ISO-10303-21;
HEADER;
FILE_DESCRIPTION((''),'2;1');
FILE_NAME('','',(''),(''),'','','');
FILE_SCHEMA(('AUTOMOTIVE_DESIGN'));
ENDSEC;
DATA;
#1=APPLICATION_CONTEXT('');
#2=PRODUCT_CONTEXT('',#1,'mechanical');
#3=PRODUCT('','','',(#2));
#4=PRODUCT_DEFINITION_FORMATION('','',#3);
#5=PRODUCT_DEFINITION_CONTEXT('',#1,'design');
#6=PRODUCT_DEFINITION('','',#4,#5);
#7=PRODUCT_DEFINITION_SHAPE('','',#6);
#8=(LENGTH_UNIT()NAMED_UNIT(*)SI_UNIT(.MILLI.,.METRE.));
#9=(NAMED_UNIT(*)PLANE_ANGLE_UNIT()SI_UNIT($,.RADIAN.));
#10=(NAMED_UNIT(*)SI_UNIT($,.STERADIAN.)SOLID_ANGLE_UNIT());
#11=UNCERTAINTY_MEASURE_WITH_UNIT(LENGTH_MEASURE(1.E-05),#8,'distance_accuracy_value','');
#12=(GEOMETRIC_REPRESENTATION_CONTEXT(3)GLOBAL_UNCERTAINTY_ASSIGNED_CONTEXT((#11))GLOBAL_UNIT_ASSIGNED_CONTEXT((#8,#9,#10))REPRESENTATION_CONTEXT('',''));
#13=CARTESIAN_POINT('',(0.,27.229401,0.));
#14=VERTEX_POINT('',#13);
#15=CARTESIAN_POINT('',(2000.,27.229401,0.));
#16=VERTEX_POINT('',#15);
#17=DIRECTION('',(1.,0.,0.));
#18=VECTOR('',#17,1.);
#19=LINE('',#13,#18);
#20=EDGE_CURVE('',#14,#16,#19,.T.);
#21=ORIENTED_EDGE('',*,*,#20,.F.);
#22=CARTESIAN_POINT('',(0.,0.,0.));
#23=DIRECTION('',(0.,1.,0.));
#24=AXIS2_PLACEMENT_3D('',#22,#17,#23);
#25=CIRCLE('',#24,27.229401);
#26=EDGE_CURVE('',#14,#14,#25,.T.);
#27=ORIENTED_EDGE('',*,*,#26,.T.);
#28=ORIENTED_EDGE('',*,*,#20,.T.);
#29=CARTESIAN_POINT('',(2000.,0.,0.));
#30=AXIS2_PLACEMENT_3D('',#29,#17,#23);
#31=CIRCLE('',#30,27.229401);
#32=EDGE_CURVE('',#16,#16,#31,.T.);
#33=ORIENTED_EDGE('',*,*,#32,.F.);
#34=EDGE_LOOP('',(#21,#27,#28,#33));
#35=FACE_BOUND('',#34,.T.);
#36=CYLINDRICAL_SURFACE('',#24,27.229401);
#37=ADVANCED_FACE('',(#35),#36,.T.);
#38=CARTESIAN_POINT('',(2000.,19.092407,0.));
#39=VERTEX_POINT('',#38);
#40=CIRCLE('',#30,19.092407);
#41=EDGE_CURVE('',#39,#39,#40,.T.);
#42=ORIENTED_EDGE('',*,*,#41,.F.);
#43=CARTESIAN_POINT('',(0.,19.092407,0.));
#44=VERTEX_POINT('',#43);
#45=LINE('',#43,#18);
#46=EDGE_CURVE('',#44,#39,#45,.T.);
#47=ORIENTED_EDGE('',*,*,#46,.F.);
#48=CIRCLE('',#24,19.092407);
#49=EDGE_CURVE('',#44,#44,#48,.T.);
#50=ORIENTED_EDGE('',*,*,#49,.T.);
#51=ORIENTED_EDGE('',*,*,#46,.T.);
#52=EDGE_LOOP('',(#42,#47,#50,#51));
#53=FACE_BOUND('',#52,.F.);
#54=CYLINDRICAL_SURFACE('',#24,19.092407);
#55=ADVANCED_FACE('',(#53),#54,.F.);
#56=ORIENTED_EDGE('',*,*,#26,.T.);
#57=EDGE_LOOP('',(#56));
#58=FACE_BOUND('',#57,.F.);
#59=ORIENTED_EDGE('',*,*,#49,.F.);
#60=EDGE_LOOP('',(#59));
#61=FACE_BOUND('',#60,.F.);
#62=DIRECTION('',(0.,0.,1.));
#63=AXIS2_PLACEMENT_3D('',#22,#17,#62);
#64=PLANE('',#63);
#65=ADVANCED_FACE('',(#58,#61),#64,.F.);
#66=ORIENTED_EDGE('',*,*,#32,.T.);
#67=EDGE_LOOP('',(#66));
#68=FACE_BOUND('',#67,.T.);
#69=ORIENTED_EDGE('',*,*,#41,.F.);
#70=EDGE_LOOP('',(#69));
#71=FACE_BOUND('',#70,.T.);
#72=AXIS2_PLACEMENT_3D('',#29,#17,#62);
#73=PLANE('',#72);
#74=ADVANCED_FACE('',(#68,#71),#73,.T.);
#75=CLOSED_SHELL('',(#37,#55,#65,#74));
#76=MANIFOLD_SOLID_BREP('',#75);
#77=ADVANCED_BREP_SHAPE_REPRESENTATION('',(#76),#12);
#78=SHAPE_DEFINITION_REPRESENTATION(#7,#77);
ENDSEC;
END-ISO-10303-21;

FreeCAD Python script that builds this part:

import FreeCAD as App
import Part
import Sketcher
from FreeCAD import Vector

doc = App.newDocument("Part")
body = doc.addObject("PartDesign::Body", "Body")

# Sketch on YZ plane
sketch1 = body.newObject("Sketcher::SketchObject", "Sketch")
sketch1.AttachmentSupport = (doc.getObject("YZ_Plane"), [""])
sketch1.MapMode = "FlatFace"
sketch1.addGeometry([
    Part.Circle(Vector(0, 0, 0), Vector(0, 0, 1), 27.229401),
    Part.Circle(Vector(0, 0, 0), Vector(0, 0, 1), 19.092407),
], False)
sketch1.addConstraint([
    Sketcher.Constraint("Coincident", 0, 3, -1, 1),
    Sketcher.Constraint("Coincident", 1, 3, -1, 1),
    Sketcher.Constraint("Diameter", 0, 54.458802),
    Sketcher.Constraint("Diameter", 1, 38.184814),
])

# Sketch on XY plane
sketch2 = body.newObject("Sketcher::SketchObject", "Sketch001")
sketch2.AttachmentSupport = (doc.getObject("XY_Plane"), [""])
sketch2.MapMode = "FlatFace"
sketch2.addGeometry(Part.LineSegment(Vector(0, 0, 0), Vector(2000, 0, 0)), False)
sketch2.addConstraint([
    Sketcher.Constraint("Horizontal", 0),
    Sketcher.Constraint("Coincident", 0, 1, -1, 1),
    Sketcher.Constraint("DistanceX", 0, 1, 0, 2, 2000.0),
])
doc.recompute()

additivepipe = body.newObject("PartDesign::AdditivePipe", "AdditivePipe")
additivepipe.Profile = sketch1
additivepipe.Spine = (sketch2, ["Edge1"])

doc.recompute()
